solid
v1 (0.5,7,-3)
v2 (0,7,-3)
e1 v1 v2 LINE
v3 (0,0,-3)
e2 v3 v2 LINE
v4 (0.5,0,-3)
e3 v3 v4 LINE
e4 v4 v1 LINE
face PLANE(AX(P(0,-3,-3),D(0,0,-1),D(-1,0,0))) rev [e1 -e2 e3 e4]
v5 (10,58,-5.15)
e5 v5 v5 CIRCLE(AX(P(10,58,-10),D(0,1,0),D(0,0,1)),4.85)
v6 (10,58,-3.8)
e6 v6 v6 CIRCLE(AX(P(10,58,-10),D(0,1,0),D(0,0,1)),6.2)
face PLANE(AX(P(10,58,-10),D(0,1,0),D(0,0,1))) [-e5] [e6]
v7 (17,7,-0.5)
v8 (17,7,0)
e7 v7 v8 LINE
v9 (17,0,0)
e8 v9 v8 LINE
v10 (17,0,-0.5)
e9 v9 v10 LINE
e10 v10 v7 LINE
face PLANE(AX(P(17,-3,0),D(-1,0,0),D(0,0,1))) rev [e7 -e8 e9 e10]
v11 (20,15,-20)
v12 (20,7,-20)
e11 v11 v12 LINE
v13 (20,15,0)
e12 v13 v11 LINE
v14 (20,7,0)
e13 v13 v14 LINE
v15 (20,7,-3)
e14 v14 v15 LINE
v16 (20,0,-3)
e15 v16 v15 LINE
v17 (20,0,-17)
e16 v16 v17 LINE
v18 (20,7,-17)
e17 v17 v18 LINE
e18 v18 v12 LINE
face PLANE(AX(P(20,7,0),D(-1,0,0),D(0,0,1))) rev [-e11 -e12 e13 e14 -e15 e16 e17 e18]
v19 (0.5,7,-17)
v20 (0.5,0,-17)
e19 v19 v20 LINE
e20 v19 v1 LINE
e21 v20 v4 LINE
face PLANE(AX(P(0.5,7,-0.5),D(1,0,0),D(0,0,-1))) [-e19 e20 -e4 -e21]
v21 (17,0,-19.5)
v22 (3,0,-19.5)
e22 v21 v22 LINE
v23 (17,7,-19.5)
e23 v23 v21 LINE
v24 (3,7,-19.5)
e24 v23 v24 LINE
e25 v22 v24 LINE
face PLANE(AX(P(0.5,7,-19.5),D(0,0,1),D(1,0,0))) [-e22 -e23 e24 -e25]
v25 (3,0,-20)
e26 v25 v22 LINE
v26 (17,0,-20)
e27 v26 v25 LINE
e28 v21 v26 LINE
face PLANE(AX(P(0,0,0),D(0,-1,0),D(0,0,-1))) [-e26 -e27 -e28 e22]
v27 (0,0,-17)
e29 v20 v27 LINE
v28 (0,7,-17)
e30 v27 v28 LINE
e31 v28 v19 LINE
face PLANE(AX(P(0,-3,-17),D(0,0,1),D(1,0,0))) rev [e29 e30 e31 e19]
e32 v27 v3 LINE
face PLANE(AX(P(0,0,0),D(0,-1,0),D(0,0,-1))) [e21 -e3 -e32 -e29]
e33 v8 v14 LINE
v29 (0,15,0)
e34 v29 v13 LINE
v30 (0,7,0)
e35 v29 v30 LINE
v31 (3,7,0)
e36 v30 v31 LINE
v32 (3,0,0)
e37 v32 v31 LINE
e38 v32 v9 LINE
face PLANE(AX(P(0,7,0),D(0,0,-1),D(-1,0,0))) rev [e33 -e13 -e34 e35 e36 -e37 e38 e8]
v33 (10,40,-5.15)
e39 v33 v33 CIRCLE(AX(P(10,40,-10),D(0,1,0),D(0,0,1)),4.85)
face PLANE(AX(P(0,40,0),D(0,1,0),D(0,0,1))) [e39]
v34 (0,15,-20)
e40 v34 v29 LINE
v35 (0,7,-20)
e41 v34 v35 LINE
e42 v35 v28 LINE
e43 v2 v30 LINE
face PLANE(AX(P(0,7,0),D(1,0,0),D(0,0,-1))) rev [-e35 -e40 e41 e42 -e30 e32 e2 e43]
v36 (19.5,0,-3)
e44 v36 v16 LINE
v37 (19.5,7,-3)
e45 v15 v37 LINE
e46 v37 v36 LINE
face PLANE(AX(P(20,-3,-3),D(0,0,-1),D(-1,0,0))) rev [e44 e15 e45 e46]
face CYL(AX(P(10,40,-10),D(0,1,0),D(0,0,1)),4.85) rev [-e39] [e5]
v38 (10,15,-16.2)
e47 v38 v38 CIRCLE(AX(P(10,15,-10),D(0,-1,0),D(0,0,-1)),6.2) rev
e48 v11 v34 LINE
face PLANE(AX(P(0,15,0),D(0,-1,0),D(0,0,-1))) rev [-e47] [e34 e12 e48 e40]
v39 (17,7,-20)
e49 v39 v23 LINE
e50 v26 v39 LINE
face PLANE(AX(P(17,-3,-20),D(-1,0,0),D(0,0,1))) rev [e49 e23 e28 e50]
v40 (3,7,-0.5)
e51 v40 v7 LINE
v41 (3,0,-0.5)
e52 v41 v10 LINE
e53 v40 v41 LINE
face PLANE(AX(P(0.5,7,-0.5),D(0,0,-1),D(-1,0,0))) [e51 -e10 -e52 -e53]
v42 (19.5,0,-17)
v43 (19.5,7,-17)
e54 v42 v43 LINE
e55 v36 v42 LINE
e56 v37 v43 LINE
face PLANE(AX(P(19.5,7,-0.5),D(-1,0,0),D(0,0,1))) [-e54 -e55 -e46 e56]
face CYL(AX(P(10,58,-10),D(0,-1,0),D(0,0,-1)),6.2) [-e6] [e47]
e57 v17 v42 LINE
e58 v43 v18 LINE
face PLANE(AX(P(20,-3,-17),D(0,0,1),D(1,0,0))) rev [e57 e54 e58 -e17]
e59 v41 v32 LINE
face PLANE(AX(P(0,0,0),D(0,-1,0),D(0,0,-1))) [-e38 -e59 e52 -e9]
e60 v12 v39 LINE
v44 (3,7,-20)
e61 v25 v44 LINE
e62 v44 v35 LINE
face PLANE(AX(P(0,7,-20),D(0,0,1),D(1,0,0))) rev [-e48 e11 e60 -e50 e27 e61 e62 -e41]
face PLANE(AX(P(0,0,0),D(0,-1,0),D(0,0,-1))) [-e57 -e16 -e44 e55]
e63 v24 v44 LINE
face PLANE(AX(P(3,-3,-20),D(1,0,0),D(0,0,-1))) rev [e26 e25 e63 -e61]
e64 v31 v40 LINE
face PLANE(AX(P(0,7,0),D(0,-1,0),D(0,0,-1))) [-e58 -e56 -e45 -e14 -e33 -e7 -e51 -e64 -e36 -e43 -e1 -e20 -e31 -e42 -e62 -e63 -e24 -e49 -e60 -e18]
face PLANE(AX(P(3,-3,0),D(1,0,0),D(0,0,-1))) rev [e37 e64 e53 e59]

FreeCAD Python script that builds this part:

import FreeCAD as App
import Part
import Sketcher

V = App.Vector


def add_polygon(sketch, points):
    """Adds a closed chain of lines whose ends are joined by coincident constraints."""
    first, n = sketch.GeometryCount, len(points)
    for a, b in zip(points, points[1:] + points[:1]):
        sketch.addGeometry(Part.LineSegment(App.Vector(*a, 0), App.Vector(*b, 0)), False)
    for i in range(n):
        sketch.addConstraint(Sketcher.Constraint("Coincident", first + i, 2, first + (i + 1) % n, 1))

doc = App.newDocument("Part")
params = doc.addObject("Spreadsheet::Sheet", "Params")
for row, (alias, value) in enumerate([
    ("sketch1_width", "20 mm"),
    ("sketch1_width2", "19 mm"),
    ("pad1_length", "7 mm"),
    ("sketch2_width", "20 mm"),
    ("pad2_length", "8 mm"),
    ("sketch3_diameter", "12.4 mm"),
    ("pad3_length", "43 mm"),
    ("sketch4_diameter", "9.7 mm"),
    ("pocket1_length", "18 mm"),
    ("sketch5_width", "3 mm"),
    ("pocket2_length", "10 mm"),
], start=1):
    params.set(f"A{row}", alias)
    params.set(f"B{row}", "=" + value)
    params.setAlias(f"B{row}", alias)

body = doc.addObject("PartDesign::Body", "Body")

sketch1 = body.newObject("Sketcher::SketchObject", "Sketch")
sketch1.AttachmentSupport = (doc.getObject("XZ_Plane"), [""])
sketch1.MapMode = "FlatFace"
add_polygon(sketch1, [(0, -20), (0, 0), (20, 0), (20, -20)])
add_polygon(sketch1, [(19.5, -0.5), (0.5, -0.5), (0.5, -19.5), (19.5, -19.5)])
sketch1.addConstraint([
    Sketcher.Constraint("Vertical", 0),
    Sketcher.Constraint("Horizontal", 1),
    Sketcher.Constraint("Vertical", 2),
    Sketcher.Constraint("Horizontal", 3),
    Sketcher.Constraint("Horizontal", 4),
    Sketcher.Constraint("Vertical", 5),
    Sketcher.Constraint("Horizontal", 6),
    Sketcher.Constraint("Vertical", 7),
    Sketcher.Constraint("Coincident", 0, 2, -1, 1),
    Sketcher.Constraint("Equal", 3, 0),
    Sketcher.Constraint("Equal", 6, 5),
    Sketcher.Constraint("DistanceX", 1, 1, 1, 2, 20.0),
    Sketcher.Constraint("DistanceX", 4, 2, 4, 1, 19.0),
    Sketcher.Constraint("DistanceX", -1, 1, 4, 2, 0.5),
    Sketcher.Constraint("DistanceY", 4, 2, -1, 1, 0.5),
])
sketch1.setExpression("Constraints[19]", "Params.sketch1_width")
sketch1.setExpression("Constraints[20]", "Params.sketch1_width2")
pad1 = body.newObject("PartDesign::Pad", "Pad")
pad1.Profile = sketch1
pad1.setExpression("Length", "Params.pad1_length")
pad1.Reversed = True

sketch2 = body.newObject("Sketcher::SketchObject", "Sketch001")
sketch2.AttachmentSupport = (doc.getObject("XZ_Plane"), [""])
sketch2.MapMode = "FlatFace"
sketch2.AttachmentOffset = App.Placement(V(0, 0, -7), App.Rotation())
add_polygon(sketch2, [(0, -20), (0, 0), (20, 0), (20, -20)])
sketch2.addConstraint([
    Sketcher.Constraint("Vertical", 0),
    Sketcher.Constraint("Horizontal", 1),
    Sketcher.Constraint("Vertical", 2),
    Sketcher.Constraint("Horizontal", 3),
    Sketcher.Constraint("Coincident", 0, 2, -1, 1),
    Sketcher.Constraint("Equal", 3, 0),
    Sketcher.Constraint("DistanceX", 1, 1, 1, 2, 20.0),
])
sketch2.setExpression("Constraints[10]", "Params.sketch2_width")
pad2 = body.newObject("PartDesign::Pad", "Pad001")
pad2.Profile = sketch2
pad2.setExpression("Length", "Params.pad2_length")
pad2.Reversed = True

sketch3 = body.newObject("Sketcher::SketchObject", "Sketch002")
sketch3.AttachmentSupport = (doc.getObject("XZ_Plane"), [""])
sketch3.MapMode = "FlatFace"
sketch3.AttachmentOffset = App.Placement(V(0, 0, -15), App.Rotation())
sketch3.addGeometry(Part.Circle(V(10, -10, 0), V(0, 0, 1), 6.2), False)
sketch3.addConstraint([
    Sketcher.Constraint("Diameter", 0, 12.4),
    Sketcher.Constraint("DistanceX", -1, 1, 0, 3, 10.0),
    Sketcher.Constraint("DistanceY", 0, 3, -1, 1, 10.0),
])
sketch3.setExpression("Constraints[0]", "Params.sketch3_diameter")
pad3 = body.newObject("PartDesign::Pad", "Pad002")
pad3.Profile = sketch3
pad3.setExpression("Length", "Params.pad3_length")
pad3.Reversed = True

sketch4 = body.newObject("Sketcher::SketchObject", "Sketch003")
sketch4.AttachmentSupport = (doc.getObject("XZ_Plane"), [""])
sketch4.MapMode = "FlatFace"
sketch4.AttachmentOffset = App.Placement(V(0, 0, -58), App.Rotation())
sketch4.addGeometry(Part.Circle(V(10, -10, 0), V(0, 0, 1), 4.85), False)
sketch4.addConstraint([
    Sketcher.Constraint("Diameter", 0, 9.7),
    Sketcher.Constraint("DistanceX", -1, 1, 0, 3, 10.0),
    Sketcher.Constraint("DistanceY", 0, 3, -1, 1, 10.0),
])
sketch4.setExpression("Constraints[0]", "Params.sketch4_diameter")
pocket1 = body.newObject("PartDesign::Pocket", "Pocket")
pocket1.Profile = sketch4
pocket1.setExpression("Length", "Params.pocket1_length")
pocket1.Reversed = True

sketch5 = body.newObject("Sketcher::SketchObject", "Sketch004")
sketch5.AttachmentSupport = (doc.getObject("XZ_Plane"), [""])
sketch5.MapMode = "FlatFace"
sketch5.AttachmentOffset = App.Placement(V(0, 0, -7), App.Rotation())
add_polygon(sketch5, [(0, -20), (0, -17), (3, -17), (3, -20)])
add_polygon(sketch5, [(17, -3), (17, 0), (20, 0), (20, -3)])
add_polygon(sketch5, [(17, -20), (17, -17), (20, -17), (20, -20)])
add_polygon(sketch5, [(0, -3), (0, 0), (3, 0), (3, -3)])
sketch5.addConstraint([
    Sketcher.Constraint("Vertical", 0),
    Sketcher.Constraint("Horizontal", 1),
    Sketcher.Constraint("Vertical", 2),
    Sketcher.Constraint("Horizontal", 3),
    Sketcher.Constraint("Vertical", 4),
    Sketcher.Constraint("Horizontal", 5),
    Sketcher.Constraint("Vertical", 6),
    Sketcher.Constraint("Horizontal", 7),
    Sketcher.Constraint("Vertical", 8),
    Sketcher.Constraint("Horizontal", 9),
    Sketcher.Constraint("Vertical", 10),
    Sketcher.Constraint("Horizontal", 11),
    Sketcher.Constraint("Vertical", 12),
    Sketcher.Constraint("Horizontal", 13),
    Sketcher.Constraint("Vertical", 14),
    Sketcher.Constraint("Horizontal", 15),
    Sketcher.Constraint("Coincident", 12, 2, -1, 1),
    Sketcher.Constraint("PointOnObject", 0, 2, -2),
    Sketcher.Constraint("PointOnObject", 4, 2, -1),
    Sketcher.Constraint("Horizontal", 1, 2, 8, 2),
    Sketcher.Constraint("Horizontal", 3, 2, 10, 2),
    Sketcher.Constraint("Horizontal", 7, 2, 14, 2),
    Sketcher.Constraint("Vertical", 7, 2, 8, 2),
    Sketcher.Constraint("Vertical", 6, 2, 9, 2),
    Sketcher.Constraint("Vertical", 2, 2, 13, 2),
    Sketcher.Constraint("Equal", 3, 5),
    Sketcher.Constraint("Equal", 15, 0),
    Sketcher.Constraint("Equal", 2, 4),
    Sketcher.Constraint("DistanceX", 1, 1, 1, 2, 3.0),
    Sketcher.Constraint("DistanceY", 0, 2, -1, 1, 17.0),
    Sketcher.Constraint("DistanceX", -1, 1, 4, 2, 17.0),
])
sketch5.setExpression("Constraints[44]", "Params.sketch5_width")
pocket2 = body.newObject("PartDesign::Pocket", "Pocket001")
pocket2.Profile = sketch5
pocket2.setExpression("Length", "Params.pocket2_length")
pocket2.Reversed = True

doc.recompute()
